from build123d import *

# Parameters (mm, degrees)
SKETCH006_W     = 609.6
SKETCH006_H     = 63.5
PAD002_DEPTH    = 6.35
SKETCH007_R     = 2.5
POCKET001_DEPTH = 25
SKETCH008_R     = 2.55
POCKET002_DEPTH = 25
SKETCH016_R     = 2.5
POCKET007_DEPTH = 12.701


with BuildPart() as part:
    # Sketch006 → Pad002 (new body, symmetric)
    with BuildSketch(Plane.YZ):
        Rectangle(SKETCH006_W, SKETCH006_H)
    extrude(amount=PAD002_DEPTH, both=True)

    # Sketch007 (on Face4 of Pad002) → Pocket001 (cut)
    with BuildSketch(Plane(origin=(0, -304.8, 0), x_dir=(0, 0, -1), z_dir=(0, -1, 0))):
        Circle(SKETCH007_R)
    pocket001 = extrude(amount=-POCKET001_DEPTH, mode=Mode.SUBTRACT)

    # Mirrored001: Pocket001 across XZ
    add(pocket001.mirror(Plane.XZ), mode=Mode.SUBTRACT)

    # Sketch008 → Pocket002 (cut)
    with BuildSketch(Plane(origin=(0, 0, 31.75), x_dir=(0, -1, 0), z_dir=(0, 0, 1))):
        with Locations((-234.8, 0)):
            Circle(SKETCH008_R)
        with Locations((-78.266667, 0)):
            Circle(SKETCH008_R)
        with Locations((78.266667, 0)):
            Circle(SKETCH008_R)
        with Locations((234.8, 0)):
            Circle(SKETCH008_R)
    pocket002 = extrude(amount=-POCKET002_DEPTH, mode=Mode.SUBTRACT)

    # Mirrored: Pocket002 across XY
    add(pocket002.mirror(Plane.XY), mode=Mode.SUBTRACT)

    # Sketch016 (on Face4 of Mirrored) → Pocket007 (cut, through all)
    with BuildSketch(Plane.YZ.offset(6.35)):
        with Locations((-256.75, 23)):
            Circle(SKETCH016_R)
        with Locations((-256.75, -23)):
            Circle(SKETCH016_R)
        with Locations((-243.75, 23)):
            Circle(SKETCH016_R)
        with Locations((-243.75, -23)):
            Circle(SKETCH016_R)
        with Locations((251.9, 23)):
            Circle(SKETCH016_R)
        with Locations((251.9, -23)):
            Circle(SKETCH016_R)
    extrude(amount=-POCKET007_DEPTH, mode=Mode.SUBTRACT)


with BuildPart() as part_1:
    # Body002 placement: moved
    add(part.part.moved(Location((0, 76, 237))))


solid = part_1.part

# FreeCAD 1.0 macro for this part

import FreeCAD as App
import Part
import Sketcher

V = App.Vector

doc = App.newDocument("Part")
body = doc.addObject("PartDesign::Body", "Body")

# Sketch on YZ plane
sketch1 = body.newObject("Sketcher::SketchObject", "Sketch")
sketch1.AttachmentSupport = (doc.getObject("YZ_Plane"), [""])
sketch1.MapMode = "FlatFace"
sketch1.addGeometry(Part.LineSegment(V(-305, 32, 0), V(-305, -32, 0)), False)
sketch1.addGeometry(Part.LineSegment(V(-305, -32, 0), V(305, -32, 0)), False)
sketch1.addGeometry(Part.LineSegment(V(305, -32, 0), V(305, 32, 0)), False)
sketch1.addGeometry(Part.LineSegment(V(305, 32, 0), V(-305, 32, 0)), False)
sketch1.addConstraint(Sketcher.Constraint("Coincident", 0, 2, 1, 1))
sketch1.addConstraint(Sketcher.Constraint("Coincident", 1, 2, 2, 1))
sketch1.addConstraint(Sketcher.Constraint("Coincident", 2, 2, 3, 1))
sketch1.addConstraint(Sketcher.Constraint("Coincident", 3, 2, 0, 1))
sketch1.addConstraint(Sketcher.Constraint("Vertical", 0))
sketch1.addConstraint(Sketcher.Constraint("Horizontal", 1))
sketch1.addConstraint(Sketcher.Constraint("Vertical", 2))
sketch1.addConstraint(Sketcher.Constraint("Horizontal", 3))
sketch1.addConstraint(Sketcher.Constraint("Symmetric", 0, 2, 2, 2, -1, 1))
sketch1.addConstraint(Sketcher.Constraint("DistanceX", 1, 1, 1, 2, 609.6))
sketch1.addConstraint(Sketcher.Constraint("DistanceY", 0, 2, 0, 1, 63.5))
pad1 = body.newObject("PartDesign::Pad", "Pad")
pad1.Profile = sketch1
pad1.Length = 12.7
pad1.Midplane = True

# Sketch on XZ plane
sketch2 = body.newObject("Sketcher::SketchObject", "Sketch001")
sketch2.AttachmentSupport = (doc.getObject("XZ_Plane"), [""])
sketch2.MapMode = "FlatFace"
sketch2.AttachmentOffset = App.Placement(V(0, 0, 304.8), App.Rotation())
sketch2.addGeometry(Part.Circle(V(0, 0, 0), V(0, 0, 1), 2.5), False)
sketch2.addConstraint(Sketcher.Constraint("Coincident", 0, 3, -1, 1))
sketch2.addConstraint(Sketcher.Constraint("Diameter", 0, 5.0))
pocket1 = body.newObject("PartDesign::Pocket", "Pocket")
pocket1.Profile = sketch2
pocket1.Length = 25
doc.recompute()

mirrored = body.newObject("PartDesign::Mirrored", "Mirrored")
mirrored.Originals = [pocket1]
mirrored.MirrorPlane = (doc.getObject("XZ_Plane"), [""])
body.Tip = mirrored

# Sketch on XY plane
sketch3 = body.newObject("Sketcher::SketchObject", "Sketch002")
sketch3.AttachmentSupport = (doc.getObject("XY_Plane"), [""])
sketch3.MapMode = "FlatFace"
sketch3.AttachmentOffset = App.Placement(V(0, 0, 31.75), App.Rotation())
sketch3.addGeometry(Part.Circle(V(0, 234.8, 0), V(0, 0, 1), 2.5), False)
sketch3.addGeometry(Part.Circle(V(0, 78.3, 0), V(0, 0, 1), 2.5), False)
sketch3.addGeometry(Part.Circle(V(0, -78.3, 0), V(0, 0, 1), 2.5), False)
sketch3.addGeometry(Part.Circle(V(0, -234.8, 0), V(0, 0, 1), 2.5), False)
sketch3.addConstraint(Sketcher.Constraint("Equal", 0, 1))
sketch3.addConstraint(Sketcher.Constraint("Equal", 1, 2))
sketch3.addConstraint(Sketcher.Constraint("Equal", 2, 3))
sketch3.addConstraint(Sketcher.Constraint("Symmetric", 1, 3, 2, 3, -1, 1))
sketch3.addConstraint(Sketcher.Constraint("Symmetric", 0, 3, 3, 3, -1, 1))
sketch3.addConstraint(Sketcher.Constraint("PointOnObject", 0, 3, -2))
sketch3.addConstraint(Sketcher.Constraint("PointOnObject", 1, 3, -2))
sketch3.addConstraint(Sketcher.Constraint("Diameter", 0, 5.1))
sketch3.addConstraint(Sketcher.Constraint("DistanceY", -1, 1, 0, 3, 234.8))
sketch3.addConstraint(Sketcher.Constraint("DistanceY", -1, 1, 1, 3, 78.266667))
pocket2 = body.newObject("PartDesign::Pocket", "Pocket001")
pocket2.Profile = sketch3
pocket2.Length = 25
doc.recompute()

mirrored2 = body.newObject("PartDesign::Mirrored", "Mirrored001")
mirrored2.Originals = [pocket2]
mirrored2.MirrorPlane = (doc.getObject("XY_Plane"), [""])
body.Tip = mirrored2

# Sketch on YZ plane
sketch4 = body.newObject("Sketcher::SketchObject", "Sketch003")
sketch4.AttachmentSupport = (doc.getObject("YZ_Plane"), [""])
sketch4.MapMode = "FlatFace"
sketch4.AttachmentOffset = App.Placement(V(0, 0, 6.35), App.Rotation())
sketch4.addGeometry(Part.Circle(V(-256.8, 23, 0), V(0, 0, 1), 2.5), False)
sketch4.addGeometry(Part.Circle(V(-256.8, -23, 0), V(0, 0, 1), 2.5), False)
sketch4.addGeometry(Part.Circle(V(-243.8, 23, 0), V(0, 0, 1), 2.5), False)
sketch4.addGeometry(Part.Circle(V(-243.8, -23, 0), V(0, 0, 1), 2.5), False)
sketch4.addGeometry(Part.Circle(V(251.9, 23, 0), V(0, 0, 1), 2.5), False)
sketch4.addGeometry(Part.Circle(V(251.9, -23, 0), V(0, 0, 1), 2.5), False)
sketch4.addConstraint(Sketcher.Constraint("Equal", 0, 1))
sketch4.addConstraint(Sketcher.Constraint("Equal", 1, 2))
sketch4.addConstraint(Sketcher.Constraint("Equal", 2, 3))
sketch4.addConstraint(Sketcher.Constraint("Equal", 3, 4))
sketch4.addConstraint(Sketcher.Constraint("Equal", 4, 5))
sketch4.addConstraint(Sketcher.Constraint("Symmetric", 0, 3, 1, 3, -1))
sketch4.addConstraint(Sketcher.Constraint("Symmetric", 2, 3, 3, 3, -1))
sketch4.addConstraint(Sketcher.Constraint("Symmetric", 4, 3, 5, 3, -1))
sketch4.addConstraint(Sketcher.Constraint("Horizontal", 0, 3, 2, 3))
sketch4.addConstraint(Sketcher.Constraint("Horizontal", 2, 3, 4, 3))
sketch4.addConstraint(Sketcher.Constraint("Diameter", 0, 5.0))
sketch4.addConstraint(Sketcher.Constraint("DistanceY", -1, 1, 0, 3, 23.0))
sketch4.addConstraint(Sketcher.Constraint("DistanceX", 0, 3, 2, 3, 13.0))
sketch4.addConstraint(Sketcher.Constraint("DistanceX", -1, 1, 4, 3, 251.9))
sketch4.addConstraint(Sketcher.Constraint("DistanceX", 0, 3, -1, 1, 256.75))
pocket3 = body.newObject("PartDesign::Pocket", "Pocket002")
pocket3.Profile = sketch4
pocket3.Type = "ThroughAll"
body2 = doc.addObject("PartDesign::Body", "Body001")
doc.recompute()

body.Placement = App.Placement(V(0, 76, 237), App.Rotation(V(0, 0, 1), 0))
boolean = body2.newObject("PartDesign::Boolean", "Boolean")
boolean.Type = "Fuse"
boolean.addObjects([body])

doc.recompute()
